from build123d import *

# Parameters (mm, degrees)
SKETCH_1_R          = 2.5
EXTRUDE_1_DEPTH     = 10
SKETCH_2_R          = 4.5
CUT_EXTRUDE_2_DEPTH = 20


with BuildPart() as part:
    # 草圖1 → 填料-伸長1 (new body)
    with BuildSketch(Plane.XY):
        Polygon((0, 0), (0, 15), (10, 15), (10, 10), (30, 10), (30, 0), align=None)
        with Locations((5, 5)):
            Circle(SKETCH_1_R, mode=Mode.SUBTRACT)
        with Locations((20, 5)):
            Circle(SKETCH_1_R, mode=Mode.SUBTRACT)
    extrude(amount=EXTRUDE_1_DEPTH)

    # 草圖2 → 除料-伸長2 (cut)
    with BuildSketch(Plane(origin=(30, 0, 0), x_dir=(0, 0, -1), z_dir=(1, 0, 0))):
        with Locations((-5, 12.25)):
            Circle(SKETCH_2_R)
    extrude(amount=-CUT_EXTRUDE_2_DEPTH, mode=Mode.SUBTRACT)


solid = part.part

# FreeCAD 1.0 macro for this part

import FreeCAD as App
import Part
import Sketcher

V = App.Vector


def add_polygon(sketch, points):
    """Adds a closed chain of lines whose ends are joined by coincident constraints."""
    first, n = sketch.GeometryCount, len(points)
    for a, b in zip(points, points[1:] + points[:1]):
        sketch.addGeometry(Part.LineSegment(App.Vector(*a, 0), App.Vector(*b, 0)), False)
    for i in range(n):
        sketch.addConstraint(Sketcher.Constraint("Coincident", first + i, 2, first + (i + 1) % n, 1))

doc = App.newDocument("Part")
body = doc.addObject("PartDesign::Body", "Body")

# Sketch on XY plane
sketch1 = body.newObject("Sketcher::SketchObject", "Sketch")
sketch1.AttachmentSupport = (doc.getObject("XY_Plane"), [""])
sketch1.MapMode = "FlatFace"
add_polygon(sketch1, [(0, 15), (0, 0), (30, 0), (30, 10), (10, 10), (10, 15)])  # lines 0-5
sketch1.addGeometry(Part.Circle(V(20, 5, 0), V(0, 0, 1), 2.5), False)  # 6
sketch1.addGeometry(Part.Circle(V(5, 5, 0), V(0, 0, 1), 2.5), False)  # 7
sketch1.addConstraint([
    Sketcher.Constraint("Vertical", 0),
    Sketcher.Constraint("Horizontal", 1),
    Sketcher.Constraint("Vertical", 2),
    Sketcher.Constraint("Horizontal", 3),
    Sketcher.Constraint("Vertical", 4),
    Sketcher.Constraint("Horizontal", 5),
    Sketcher.Constraint("Coincident", 0, 2, -1, 1),
    Sketcher.Constraint("Equal", 6, 7),
    Sketcher.Constraint("Horizontal", 6, 3, 7, 3),
    Sketcher.Constraint("Equal", 5, 2),
    Sketcher.Constraint("Diameter", 6, 5.0),
    Sketcher.Constraint("DistanceX", 1, 1, 1, 2, 30.0),
    Sketcher.Constraint("DistanceX", 3, 2, 3, 1, 20.0),
    Sketcher.Constraint("DistanceY", 0, 2, 0, 1, 15.0),
    Sketcher.Constraint("DistanceX", -1, 1, 6, 3, 20.0),
    Sketcher.Constraint("DistanceY", -1, 1, 6, 3, 5.0),
    Sketcher.Constraint("DistanceX", -1, 1, 7, 3, 5.0),
])
pad1 = body.newObject("PartDesign::Pad", "Pad")
pad1.Profile = sketch1
pad1.Length = 10

# Sketch on YZ plane
sketch2 = body.newObject("Sketcher::SketchObject", "Sketch001")
sketch2.AttachmentSupport = (doc.getObject("YZ_Plane"), [""])
sketch2.MapMode = "FlatFace"
sketch2.AttachmentOffset = App.Placement(V(0, 0, 30), App.Rotation())
sketch2.addGeometry(Part.Circle(V(12.2, 5, 0), V(0, 0, 1), 4.5), False)
sketch2.addConstraint([
    Sketcher.Constraint("Diameter", 0, 9.0),
    Sketcher.Constraint("DistanceY", -1, 1, 0, 3, 5.0),
    Sketcher.Constraint("DistanceX", -1, 1, 0, 3, 12.25),
])
pocket1 = body.newObject("PartDesign::Pocket", "Pocket")
pocket1.Profile = sketch2
pocket1.Length = 20

doc.recompute()
